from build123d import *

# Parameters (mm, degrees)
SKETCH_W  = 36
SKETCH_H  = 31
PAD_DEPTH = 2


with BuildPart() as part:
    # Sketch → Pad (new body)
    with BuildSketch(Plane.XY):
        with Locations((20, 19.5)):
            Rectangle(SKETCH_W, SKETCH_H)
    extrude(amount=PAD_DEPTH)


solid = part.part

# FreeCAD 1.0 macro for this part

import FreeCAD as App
import Part
import Sketcher

doc = App.newDocument("Part")
params = doc.addObject("Spreadsheet::Sheet", "Params")
for row, (alias, value) in enumerate([
    ("sketch1_width", "36 mm"),
    ("sketch1_height", "31 mm"),
    ("pad1_length", "2 mm"),
], start=1):
    params.set(f"A{row}", alias)
    params.set(f"B{row}", "=" + value)
    params.setAlias(f"B{row}", alias)

body = doc.addObject("PartDesign::Body", "Body")

# Sketch on XY plane
sketch1 = body.newObject("Sketcher::SketchObject", "Sketch")
sketch1.AttachmentSupport = (doc.getObject("XY_Plane"), [""])
sketch1.MapMode = "FlatFace"
sketch1.addGeometry([
    Part.LineSegment(App.Vector(2, 35, 0), App.Vector(2, 4, 0)),
    Part.LineSegment(App.Vector(2, 4, 0), App.Vector(38, 4, 0)),
    Part.LineSegment(App.Vector(38, 4, 0), App.Vector(38, 35, 0)),
    Part.LineSegment(App.Vector(38, 35, 0), App.Vector(2, 35, 0)),
], False)
sketch1.addConstraint([
    Sketcher.Constraint("Coincident", 0, 2, 1, 1),
    Sketcher.Constraint("Coincident", 1, 2, 2, 1),
    Sketcher.Constraint("Coincident", 2, 2, 3, 1),
    Sketcher.Constraint("Coincident", 3, 2, 0, 1),
    Sketcher.Constraint("Vertical", 0),
    Sketcher.Constraint("Horizontal", 1),
    Sketcher.Constraint("Vertical", 2),
    Sketcher.Constraint("Horizontal", 3),
    Sketcher.Constraint("DistanceX", 1, 1, 1, 2, 36.0),
    Sketcher.Constraint("DistanceY", 0, 2, 0, 1, 31.0),
    Sketcher.Constraint("DistanceX", -1, 1, 0, 2, 2.0),
    Sketcher.Constraint("DistanceY", -1, 1, 0, 2, 4.0),
])
sketch1.setExpression("Constraints[8]", "Params.sketch1_width")
sketch1.setExpression("Constraints[9]", "Params.sketch1_height")
pad1 = body.newObject("PartDesign::Pad", "Pad")
pad1.Profile = sketch1
pad1.setExpression("Length", "Params.pad1_length")

doc.recompute()
